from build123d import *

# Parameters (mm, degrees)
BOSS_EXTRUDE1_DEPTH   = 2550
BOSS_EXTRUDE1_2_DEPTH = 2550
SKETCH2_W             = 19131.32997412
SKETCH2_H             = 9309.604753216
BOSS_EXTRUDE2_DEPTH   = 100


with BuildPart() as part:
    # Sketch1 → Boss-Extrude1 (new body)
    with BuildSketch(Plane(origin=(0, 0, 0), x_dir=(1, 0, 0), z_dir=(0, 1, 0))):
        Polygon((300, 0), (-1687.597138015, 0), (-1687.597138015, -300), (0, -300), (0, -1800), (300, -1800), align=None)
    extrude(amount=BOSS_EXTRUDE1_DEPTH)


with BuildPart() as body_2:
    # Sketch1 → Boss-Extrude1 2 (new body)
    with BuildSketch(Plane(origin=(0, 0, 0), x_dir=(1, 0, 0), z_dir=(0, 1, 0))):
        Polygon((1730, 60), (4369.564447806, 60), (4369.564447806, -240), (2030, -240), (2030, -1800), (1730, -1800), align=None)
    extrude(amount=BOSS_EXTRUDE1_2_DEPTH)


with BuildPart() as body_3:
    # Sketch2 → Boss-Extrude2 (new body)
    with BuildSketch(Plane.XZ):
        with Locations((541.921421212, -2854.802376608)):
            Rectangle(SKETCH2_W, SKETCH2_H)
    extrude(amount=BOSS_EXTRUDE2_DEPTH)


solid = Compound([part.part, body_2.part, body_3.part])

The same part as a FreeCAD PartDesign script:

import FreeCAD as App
import Part
import Sketcher

V = App.Vector

doc = App.newDocument("Part")
body = doc.addObject("PartDesign::Body", "Body")

sketch1 = body.newObject("Sketcher::SketchObject", "Sketch")
sketch1.AttachmentSupport = (doc.getObject("XZ_Plane"), [""])
sketch1.MapMode = "FlatFace"
sketch1.addGeometry([
    Part.LineSegment(V(300, 0, 0), V(-1688, 0, 0)),
    Part.LineSegment(V(-1688, 0, 0), V(-1688, 300, 0)),
    Part.LineSegment(V(-1688, 300, 0), V(0, 300, 0)),
    Part.LineSegment(V(0, 300, 0), V(0, 1800, 0)),
    Part.LineSegment(V(0, 1800, 0), V(300, 1800, 0)),
    Part.LineSegment(V(300, 1800, 0), V(300, 0, 0)),
], False)
sketch1.addConstraint([
    Sketcher.Constraint("Coincident", 0, 2, 1, 1),
    Sketcher.Constraint("Coincident", 1, 2, 2, 1),
    Sketcher.Constraint("Coincident", 2, 2, 3, 1),
    Sketcher.Constraint("Coincident", 3, 2, 4, 1),
    Sketcher.Constraint("Coincident", 4, 2, 5, 1),
    Sketcher.Constraint("Coincident", 5, 2, 0, 1),
    Sketcher.Constraint("Horizontal", 0),
    Sketcher.Constraint("Vertical", 1),
    Sketcher.Constraint("Horizontal", 2),
    Sketcher.Constraint("Vertical", 3),
    Sketcher.Constraint("Horizontal", 4),
    Sketcher.Constraint("Vertical", 5),
    Sketcher.Constraint("PointOnObject", 0, 2, -1),
    Sketcher.Constraint("PointOnObject", 2, 2, -2),
    Sketcher.Constraint("Equal", 4, 1),
    Sketcher.Constraint("DistanceX", 4, 1, 4, 2, 300.0),
    Sketcher.Constraint("DistanceY", 3, 1, 3, 2, 1500.0),
    Sketcher.Constraint("DistanceX", 0, 2, 0, 1, 1987.597138),
])
pad1 = body.newObject("PartDesign::Pad", "Pad")
pad1.Profile = sketch1
pad1.Length = 2550
pad1.Reversed = True
body2 = doc.addObject("PartDesign::Body", "Body001")

sketch2 = body2.newObject("Sketcher::SketchObject", "Sketch001")
sketch2.AttachmentSupport = (doc.getObject("XZ_Plane001"), [""])
sketch2.MapMode = "FlatFace"
sketch2.addGeometry([
    Part.LineSegment(V(4370, -60, 0), V(1730, -60, 0)),
    Part.LineSegment(V(1730, -60, 0), V(1730, 1800, 0)),
    Part.LineSegment(V(1730, 1800, 0), V(2030, 1800, 0)),
    Part.LineSegment(V(2030, 1800, 0), V(2030, 240, 0)),
    Part.LineSegment(V(2030, 240, 0), V(4370, 240, 0)),
    Part.LineSegment(V(4370, 240, 0), V(4370, -60, 0)),
], False)
sketch2.addConstraint([
    Sketcher.Constraint("Coincident", 0, 2, 1, 1),
    Sketcher.Constraint("Coincident", 1, 2, 2, 1),
    Sketcher.Constraint("Coincident", 2, 2, 3, 1),
    Sketcher.Constraint("Coincident", 3, 2, 4, 1),
    Sketcher.Constraint("Coincident", 4, 2, 5, 1),
    Sketcher.Constraint("Coincident", 5, 2, 0, 1),
    Sketcher.Constraint("Horizontal", 0),
    Sketcher.Constraint("Vertical", 1),
    Sketcher.Constraint("Horizontal", 2),
    Sketcher.Constraint("Vertical", 3),
    Sketcher.Constraint("Horizontal", 4),
    Sketcher.Constraint("Vertical", 5),
    Sketcher.Constraint("Equal", 2, 5),
    Sketcher.Constraint("DistanceX", 2, 1, 2, 2, 300.0),
    Sketcher.Constraint("DistanceY", 1, 1, 1, 2, 1860.0),
    Sketcher.Constraint("DistanceX", -1, 1, 0, 2, 1730.0),
    Sketcher.Constraint("DistanceY", 0, 2, -1, 1, 60.0),
    Sketcher.Constraint("DistanceX", 0, 2, 0, 1, 2639.564448),
])
pad2 = body2.newObject("PartDesign::Pad", "Pad001")
pad2.Profile = sketch2
pad2.Length = 2550
pad2.Reversed = True
body3 = doc.addObject("PartDesign::Body", "Body002")

sketch3 = body3.newObject("Sketcher::SketchObject", "Sketch002")
sketch3.AttachmentSupport = (doc.getObject("XZ_Plane002"), [""])
sketch3.MapMode = "FlatFace"
sketch3.addGeometry([
    Part.LineSegment(V(-9024, 1800, 0), V(-9024, -7510, 0)),
    Part.LineSegment(V(-9024, -7510, 0), V(10108, -7510, 0)),
    Part.LineSegment(V(10108, -7510, 0), V(10108, 1800, 0)),
    Part.LineSegment(V(10108, 1800, 0), V(-9024, 1800, 0)),
], False)
sketch3.addConstraint([
    Sketcher.Constraint("Coincident", 0, 2, 1, 1),
    Sketcher.Constraint("Coincident", 1, 2, 2, 1),
    Sketcher.Constraint("Coincident", 2, 2, 3, 1),
    Sketcher.Constraint("Coincident", 3, 2, 0, 1),
    Sketcher.Constraint("Vertical", 0),
    Sketcher.Constraint("Horizontal", 1),
    Sketcher.Constraint("Vertical", 2),
    Sketcher.Constraint("Horizontal", 3),
    Sketcher.Constraint("DistanceY", -1, 1, 2, 2, 1800.0),
    Sketcher.Constraint("DistanceX", 1, 1, 1, 2, 19131.329974),
    Sketcher.Constraint("DistanceY", 0, 2, 0, 1, 9309.604753),
    Sketcher.Constraint("DistanceX", -1, 1, 1, 2, 10107.586408),
])
pad3 = body3.newObject("PartDesign::Pad", "Pad002")
pad3.Profile = sketch3
pad3.Length = 100

doc.recompute()
